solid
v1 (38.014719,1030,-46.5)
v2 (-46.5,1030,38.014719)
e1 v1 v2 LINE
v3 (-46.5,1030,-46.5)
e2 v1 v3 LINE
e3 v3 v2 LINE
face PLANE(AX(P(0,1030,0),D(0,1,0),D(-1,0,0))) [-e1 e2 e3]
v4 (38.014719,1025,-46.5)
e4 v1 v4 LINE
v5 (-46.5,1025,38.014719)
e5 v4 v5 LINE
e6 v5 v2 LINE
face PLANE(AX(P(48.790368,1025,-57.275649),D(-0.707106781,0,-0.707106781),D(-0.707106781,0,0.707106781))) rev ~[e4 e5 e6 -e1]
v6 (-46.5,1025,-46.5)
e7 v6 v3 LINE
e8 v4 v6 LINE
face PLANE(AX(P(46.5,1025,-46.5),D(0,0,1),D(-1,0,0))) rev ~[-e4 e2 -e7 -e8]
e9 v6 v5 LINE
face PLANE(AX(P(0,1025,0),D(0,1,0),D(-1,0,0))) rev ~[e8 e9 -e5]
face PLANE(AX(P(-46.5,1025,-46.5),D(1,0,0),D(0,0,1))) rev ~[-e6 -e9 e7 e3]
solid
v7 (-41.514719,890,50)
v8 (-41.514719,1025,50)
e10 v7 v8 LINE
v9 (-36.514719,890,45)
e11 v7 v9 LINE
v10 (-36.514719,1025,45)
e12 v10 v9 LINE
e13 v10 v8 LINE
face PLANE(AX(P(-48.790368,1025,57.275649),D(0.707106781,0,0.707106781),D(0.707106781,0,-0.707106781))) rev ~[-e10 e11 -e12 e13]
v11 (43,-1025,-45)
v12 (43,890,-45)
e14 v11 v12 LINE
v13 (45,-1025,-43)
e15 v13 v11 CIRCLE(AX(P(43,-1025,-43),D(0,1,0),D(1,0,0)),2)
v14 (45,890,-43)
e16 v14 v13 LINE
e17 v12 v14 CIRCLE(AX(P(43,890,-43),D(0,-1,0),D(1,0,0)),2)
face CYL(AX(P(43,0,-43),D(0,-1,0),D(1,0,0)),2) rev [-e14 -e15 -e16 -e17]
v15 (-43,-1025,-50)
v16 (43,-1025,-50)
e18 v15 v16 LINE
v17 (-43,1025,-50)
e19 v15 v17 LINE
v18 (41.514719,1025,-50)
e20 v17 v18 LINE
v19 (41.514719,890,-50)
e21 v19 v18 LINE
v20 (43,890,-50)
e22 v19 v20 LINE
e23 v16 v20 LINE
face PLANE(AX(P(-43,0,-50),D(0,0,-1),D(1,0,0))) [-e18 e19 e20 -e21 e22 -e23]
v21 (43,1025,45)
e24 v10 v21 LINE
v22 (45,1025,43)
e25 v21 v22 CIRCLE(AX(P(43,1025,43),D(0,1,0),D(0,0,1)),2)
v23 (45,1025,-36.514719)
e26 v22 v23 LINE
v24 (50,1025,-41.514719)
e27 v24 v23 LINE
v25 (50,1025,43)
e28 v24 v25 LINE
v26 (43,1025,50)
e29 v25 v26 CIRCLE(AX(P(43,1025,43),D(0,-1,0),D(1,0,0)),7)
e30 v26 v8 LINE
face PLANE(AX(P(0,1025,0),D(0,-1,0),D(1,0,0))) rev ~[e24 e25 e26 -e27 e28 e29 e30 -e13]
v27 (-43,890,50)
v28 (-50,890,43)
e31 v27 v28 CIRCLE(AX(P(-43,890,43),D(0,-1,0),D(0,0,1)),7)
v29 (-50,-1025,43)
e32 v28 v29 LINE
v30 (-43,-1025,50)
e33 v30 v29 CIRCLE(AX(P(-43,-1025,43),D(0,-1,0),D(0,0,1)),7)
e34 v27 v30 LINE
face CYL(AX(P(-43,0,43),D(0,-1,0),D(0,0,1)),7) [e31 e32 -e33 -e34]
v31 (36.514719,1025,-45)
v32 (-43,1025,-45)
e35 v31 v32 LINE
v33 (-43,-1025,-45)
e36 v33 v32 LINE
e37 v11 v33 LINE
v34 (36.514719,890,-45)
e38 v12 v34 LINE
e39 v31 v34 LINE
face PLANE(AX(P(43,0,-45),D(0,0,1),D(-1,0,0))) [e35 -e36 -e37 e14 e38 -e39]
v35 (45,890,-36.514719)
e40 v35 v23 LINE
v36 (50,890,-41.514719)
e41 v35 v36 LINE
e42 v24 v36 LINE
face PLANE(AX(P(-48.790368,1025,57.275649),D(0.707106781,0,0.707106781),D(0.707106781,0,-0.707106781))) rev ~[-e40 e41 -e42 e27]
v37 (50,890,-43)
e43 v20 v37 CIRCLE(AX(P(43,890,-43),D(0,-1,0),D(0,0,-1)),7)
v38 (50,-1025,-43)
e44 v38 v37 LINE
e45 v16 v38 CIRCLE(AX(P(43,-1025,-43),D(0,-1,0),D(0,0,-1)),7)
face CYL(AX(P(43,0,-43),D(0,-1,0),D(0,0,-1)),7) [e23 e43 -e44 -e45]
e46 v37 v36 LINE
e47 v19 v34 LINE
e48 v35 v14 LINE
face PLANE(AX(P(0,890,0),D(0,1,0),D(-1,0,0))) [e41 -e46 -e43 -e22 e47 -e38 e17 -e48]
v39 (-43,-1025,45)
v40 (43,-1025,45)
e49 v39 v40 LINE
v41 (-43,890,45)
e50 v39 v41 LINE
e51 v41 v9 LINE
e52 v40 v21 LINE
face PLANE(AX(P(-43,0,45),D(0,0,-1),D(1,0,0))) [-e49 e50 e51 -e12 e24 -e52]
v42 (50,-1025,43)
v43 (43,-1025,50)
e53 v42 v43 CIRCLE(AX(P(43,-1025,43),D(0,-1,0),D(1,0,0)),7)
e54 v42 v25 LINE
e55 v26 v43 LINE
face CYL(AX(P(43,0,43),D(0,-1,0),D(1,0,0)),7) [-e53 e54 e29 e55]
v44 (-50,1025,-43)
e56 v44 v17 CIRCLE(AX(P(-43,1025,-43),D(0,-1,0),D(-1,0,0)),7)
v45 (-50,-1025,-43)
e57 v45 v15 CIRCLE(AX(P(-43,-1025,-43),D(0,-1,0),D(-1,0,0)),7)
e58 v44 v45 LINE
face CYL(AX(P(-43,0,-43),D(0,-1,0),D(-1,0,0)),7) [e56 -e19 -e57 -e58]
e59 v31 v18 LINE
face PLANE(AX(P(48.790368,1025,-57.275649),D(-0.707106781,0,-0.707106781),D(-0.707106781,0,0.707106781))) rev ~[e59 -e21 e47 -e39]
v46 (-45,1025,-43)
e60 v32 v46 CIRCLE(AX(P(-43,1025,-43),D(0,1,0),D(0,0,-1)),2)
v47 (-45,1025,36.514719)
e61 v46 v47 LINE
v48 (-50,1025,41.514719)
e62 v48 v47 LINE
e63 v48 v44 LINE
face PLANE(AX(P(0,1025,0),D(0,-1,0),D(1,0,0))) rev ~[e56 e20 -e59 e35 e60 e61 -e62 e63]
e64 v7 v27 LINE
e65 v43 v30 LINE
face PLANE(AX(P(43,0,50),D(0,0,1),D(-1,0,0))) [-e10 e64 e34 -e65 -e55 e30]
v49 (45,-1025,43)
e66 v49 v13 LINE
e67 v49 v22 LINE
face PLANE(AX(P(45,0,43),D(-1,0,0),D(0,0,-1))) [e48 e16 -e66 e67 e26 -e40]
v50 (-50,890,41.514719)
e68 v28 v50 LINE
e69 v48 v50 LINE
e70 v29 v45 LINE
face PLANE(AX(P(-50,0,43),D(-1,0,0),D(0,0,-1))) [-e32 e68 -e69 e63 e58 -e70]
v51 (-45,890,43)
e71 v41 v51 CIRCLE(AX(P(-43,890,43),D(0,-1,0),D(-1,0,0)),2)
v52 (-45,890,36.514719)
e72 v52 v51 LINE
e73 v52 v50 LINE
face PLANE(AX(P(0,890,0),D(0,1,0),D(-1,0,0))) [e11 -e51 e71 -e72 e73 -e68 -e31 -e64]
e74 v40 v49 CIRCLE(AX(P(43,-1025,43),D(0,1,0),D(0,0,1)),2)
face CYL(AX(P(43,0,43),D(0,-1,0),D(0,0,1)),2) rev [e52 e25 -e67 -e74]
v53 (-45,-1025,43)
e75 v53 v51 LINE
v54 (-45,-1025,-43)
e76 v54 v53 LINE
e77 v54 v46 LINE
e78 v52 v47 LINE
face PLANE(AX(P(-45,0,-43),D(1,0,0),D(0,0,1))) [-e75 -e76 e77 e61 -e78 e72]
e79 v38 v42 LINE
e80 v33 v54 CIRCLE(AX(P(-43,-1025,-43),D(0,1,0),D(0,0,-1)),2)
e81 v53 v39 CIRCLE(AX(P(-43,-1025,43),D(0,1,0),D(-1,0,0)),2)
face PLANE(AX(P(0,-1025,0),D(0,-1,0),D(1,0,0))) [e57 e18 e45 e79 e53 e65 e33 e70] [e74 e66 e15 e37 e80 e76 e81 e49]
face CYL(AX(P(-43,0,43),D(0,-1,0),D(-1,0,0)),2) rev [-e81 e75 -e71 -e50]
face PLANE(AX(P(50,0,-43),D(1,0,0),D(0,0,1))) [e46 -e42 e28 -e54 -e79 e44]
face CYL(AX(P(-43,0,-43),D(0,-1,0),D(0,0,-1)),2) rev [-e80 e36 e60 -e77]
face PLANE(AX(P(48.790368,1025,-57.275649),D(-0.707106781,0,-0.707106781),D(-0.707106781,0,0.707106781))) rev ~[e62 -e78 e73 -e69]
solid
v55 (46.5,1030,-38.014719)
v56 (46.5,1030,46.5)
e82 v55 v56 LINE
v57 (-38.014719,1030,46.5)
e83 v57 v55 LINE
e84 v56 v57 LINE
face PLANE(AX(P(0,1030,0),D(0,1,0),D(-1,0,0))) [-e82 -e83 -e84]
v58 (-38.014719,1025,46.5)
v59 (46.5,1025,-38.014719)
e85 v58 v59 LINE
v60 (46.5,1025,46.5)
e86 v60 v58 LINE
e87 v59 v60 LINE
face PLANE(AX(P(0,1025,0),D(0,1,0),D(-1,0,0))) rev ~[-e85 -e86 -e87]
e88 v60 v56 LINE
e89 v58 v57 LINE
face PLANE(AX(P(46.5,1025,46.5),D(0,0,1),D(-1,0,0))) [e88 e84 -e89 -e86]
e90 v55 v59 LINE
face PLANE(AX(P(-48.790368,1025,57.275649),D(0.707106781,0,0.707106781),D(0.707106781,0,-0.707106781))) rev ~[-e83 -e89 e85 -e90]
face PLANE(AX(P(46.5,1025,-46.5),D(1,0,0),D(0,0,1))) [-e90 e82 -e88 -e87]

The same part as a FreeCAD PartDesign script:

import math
import FreeCAD as App
import Part
import Sketcher

V = App.Vector
Q = App.Units.Quantity

doc = App.newDocument("Part")
body = doc.addObject("PartDesign::Body", "Body")

sketch1 = doc.addObject("Sketcher::SketchObject", "Sketch")
body.addObject(sketch1)
sketch1.AttachmentSupport = (doc.XZ_Plane, [""])
sketch1.MapMode = "FlatFace"
sketch1.addGeometry([
    Part.ArcOfCircle(Part.Circle(V(43, 43, 0), V(0, 0, 1), 7), math.radians(0), math.radians(90)),
    Part.LineSegment(V(43, 50, 0), V(-43, 50, 0)),
    Part.ArcOfCircle(Part.Circle(V(-43, 43, 0), V(0, 0, 1), 7), math.radians(90), math.radians(180)),
    Part.LineSegment(V(-50, 43, 0), V(-50, -43, 0)),
    Part.ArcOfCircle(Part.Circle(V(-43, -43, 0), V(0, 0, 1), 7), math.radians(180), math.radians(270)),
    Part.LineSegment(V(-43, -50, 0), V(43, -50, 0)),
    Part.ArcOfCircle(Part.Circle(V(43, -43, 0), V(0, 0, 1), 7), math.radians(-90), math.radians(0)),
    Part.LineSegment(V(50, -43, 0), V(50, 43, 0)),
    Part.LineSegment(V(45, 43, 0), V(45, -43, 0)),
    Part.ArcOfCircle(Part.Circle(V(43, -43, 0), V(0, 0, 1), 2), math.radians(-90), math.radians(0)),
    Part.LineSegment(V(43, -45, 0), V(-43, -45, 0)),
    Part.ArcOfCircle(Part.Circle(V(-43, -43, 0), V(0, 0, 1), 2), math.radians(180), math.radians(270)),
    Part.LineSegment(V(-45, -43, 0), V(-45, 43, 0)),
    Part.ArcOfCircle(Part.Circle(V(-43, 43, 0), V(0, 0, 1), 2), math.radians(90), math.radians(180)),
    Part.LineSegment(V(-43, 45, 0), V(43, 45, 0)),
    Part.ArcOfCircle(Part.Circle(V(43, 43, 0), V(0, 0, 1), 2), math.radians(0), math.radians(90)),
], False)
sketch1.addConstraint([
    Sketcher.Constraint("Tangent", 0, 2, 1, 1),
    Sketcher.Constraint("Tangent", 1, 2, 2, 1),
    Sketcher.Constraint("Tangent", 2, 2, 3, 1),
    Sketcher.Constraint("Tangent", 3, 2, 4, 1),
    Sketcher.Constraint("Tangent", 4, 2, 5, 1),
    Sketcher.Constraint("Tangent", 5, 2, 6, 1),
    Sketcher.Constraint("Tangent", 6, 2, 7, 1),
    Sketcher.Constraint("Tangent", 7, 2, 0, 1),
    Sketcher.Constraint("Tangent", 8, 2, 9, 2),
    Sketcher.Constraint("Tangent", 9, 1, 10, 1),
    Sketcher.Constraint("Tangent", 10, 2, 11, 2),
    Sketcher.Constraint("Tangent", 11, 1, 12, 1),
    Sketcher.Constraint("Tangent", 12, 2, 13, 2),
    Sketcher.Constraint("Tangent", 13, 1, 14, 1),
    Sketcher.Constraint("Tangent", 14, 2, 15, 2),
    Sketcher.Constraint("Tangent", 15, 1, 8, 1),
    Sketcher.Constraint("Horizontal", 1),
    Sketcher.Constraint("Vertical", 3),
    Sketcher.Constraint("Horizontal", 5),
    Sketcher.Constraint("Vertical", 7),
    Sketcher.Constraint("Vertical", 8),
    Sketcher.Constraint("Horizontal", 10),
    Sketcher.Constraint("Vertical", 12),
    Sketcher.Constraint("Horizontal", 14),
    Sketcher.Constraint("Coincident", 9, 3, 6, 3),
    Sketcher.Constraint("Coincident", 11, 3, 4, 3),
    Sketcher.Constraint("Coincident", 13, 3, 2, 3),
    Sketcher.Constraint("Equal", 0, 2),
    Sketcher.Constraint("Equal", 2, 4),
    Sketcher.Constraint("Equal", 4, 6),
    Sketcher.Constraint("Equal", 13, 15),
    Sketcher.Constraint("Symmetric", 0, 3, 4, 3, -1, 1),
    Sketcher.Constraint("Equal", 14, 3),
    Sketcher.Constraint("Radius", 0, 7.0),
    Sketcher.Constraint("Radius", 9, 2.0),
    Sketcher.Constraint("DistanceX", 1, 2, 1, 1, 86.0),
])
pad1 = doc.addObject("PartDesign::Pad", "Pad")
body.addObject(pad1)
pad1.Profile = sketch1
pad1.Length = 2050
pad1.Midplane = True
body2 = doc.addObject("PartDesign::Body", "Body001")

sketch2 = doc.addObject("Sketcher::SketchObject", "Sketch001")
body2.addObject(sketch2)
sketch2.AttachmentSupport = (doc.getObject("XZ_Plane001"), [""])
sketch2.MapMode = "FlatFace"
sketch2.AttachmentOffset = App.Placement(V(0, 0, -1025), App.Rotation())
sketch2.addGeometry([
    Part.LineSegment(V(46.5, 46.5, 0), V(46.5, -46.5, 0)),
    Part.LineSegment(V(46.5, -46.5, 0), V(-46.5, -46.5, 0)),
    Part.LineSegment(V(-46.5, -46.5, 0), V(-46.5, 46.5, 0)),
    Part.LineSegment(V(-46.5, 46.5, 0), V(46.5, 46.5, 0)),
], False)
sketch2.addConstraint([
    Sketcher.Constraint("Coincident", 0, 2, 1, 1),
    Sketcher.Constraint("Coincident", 1, 2, 2, 1),
    Sketcher.Constraint("Coincident", 2, 2, 3, 1),
    Sketcher.Constraint("Coincident", 3, 2, 0, 1),
    Sketcher.Constraint("Vertical", 0),
    Sketcher.Constraint("Horizontal", 1),
    Sketcher.Constraint("Vertical", 2),
    Sketcher.Constraint("Horizontal", 3),
    Sketcher.Constraint("Symmetric", 0, 2, 2, 2, -1, 1),
    Sketcher.Constraint("Equal", 3, 0),
    Sketcher.Constraint("DistanceX", 1, 2, 1, 1, 93.0),
])
pad2 = doc.addObject("PartDesign::Pad", "Pad001")
body2.addObject(pad2)
pad2.Profile = sketch2
pad2.Length = 5
pad2.Reversed = True
body3 = doc.addObject("PartDesign::Body", "Body002")

sketch3 = doc.addObject("Sketcher::SketchObject", "Sketch002")
body3.addObject(sketch3)
sketch3.AttachmentSupport = (doc.getObject("XZ_Plane002"), [""])
sketch3.MapMode = "FlatFace"
sketch3.AttachmentOffset = App.Placement(V(0, 0, -1025), App.Rotation())
sketch3.addGeometry([
    Part.LineSegment(V(48.790368, -57.275649, 0), V(-57.275649, 48.790368, 0)),
    Part.LineSegment(V(-57.275649, 48.790368, 0), V(-48.790368, 57.275649, 0)),
    Part.LineSegment(V(-48.790368, 57.275649, 0), V(57.275649, -48.790368, 0)),
    Part.LineSegment(V(57.275649, -48.790368, 0), V(48.790368, -57.275649, 0)),
], False)
sketch3.addConstraint([
    Sketcher.Constraint("Coincident", 0, 2, 1, 1),
    Sketcher.Constraint("Coincident", 1, 2, 2, 1),
    Sketcher.Constraint("Coincident", 2, 2, 3, 1),
    Sketcher.Constraint("Coincident", 3, 2, 0, 1),
    Sketcher.Constraint("Symmetric", 0, 2, 2, 2, -1, 1),
    Sketcher.Constraint("Symmetric", 1, 2, 3, 2, -1, 1),
    Sketcher.Constraint("Perpendicular", 0, 1),
    Sketcher.Constraint("Angle", 0, Q("135 deg")),
    Sketcher.Constraint("Distance", 0, 150.0),
    Sketcher.Constraint("Distance", 1, 12.0),
])
pad3 = doc.addObject("PartDesign::Pad", "Pad002")
body3.addObject(pad3)
pad3.Profile = sketch3
pad3.Length = 270
pad3.Midplane = True
doc.recompute()

body4 = doc.addObject("PartDesign::Body", "Body003")
body4.BaseFeature = body3
boolean = doc.addObject("PartDesign::Boolean", "Boolean")
body.addObject(boolean)
boolean.Type = "Cut"
boolean.addObjects([body4])
doc.recompute()
body2.AllowCompound = True
doc.recompute()

boolean2 = doc.addObject("PartDesign::Boolean", "Boolean001")
body2.addObject(boolean2)
boolean2.Type = "Cut"
boolean2.addObjects([body3])

doc.recompute()
